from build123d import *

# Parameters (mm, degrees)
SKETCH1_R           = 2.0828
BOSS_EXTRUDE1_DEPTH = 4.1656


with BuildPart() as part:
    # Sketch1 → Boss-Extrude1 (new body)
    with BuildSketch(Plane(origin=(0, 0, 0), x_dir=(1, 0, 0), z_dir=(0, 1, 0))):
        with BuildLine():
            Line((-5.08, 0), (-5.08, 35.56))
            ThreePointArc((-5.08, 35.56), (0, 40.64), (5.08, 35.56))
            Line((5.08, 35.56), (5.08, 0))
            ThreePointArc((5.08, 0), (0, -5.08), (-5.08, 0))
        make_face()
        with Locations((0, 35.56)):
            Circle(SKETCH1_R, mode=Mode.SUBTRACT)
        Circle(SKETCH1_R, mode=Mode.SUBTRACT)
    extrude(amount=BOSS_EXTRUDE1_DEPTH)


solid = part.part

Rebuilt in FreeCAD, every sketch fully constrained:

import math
import FreeCAD as App
import Part
import Sketcher

V = App.Vector
Q = App.Units.Quantity

doc = App.newDocument("Part")
body = doc.addObject("PartDesign::Body", "Body")

sketch1 = doc.addObject("Sketcher::SketchObject", "Sketch")
body.addObject(sketch1)
sketch1.AttachmentSupport = (doc.XZ_Plane, [""])
sketch1.MapMode = "FlatFace"
sketch1.addGeometry([
    Part.LineSegment(V(-5.08, -35.56, 0), V(-5.08, 0, 0)),
    Part.ArcOfCircle(Part.Circle(V(0, 0, 0), V(0, 0, 1), 5.08), math.radians(0), math.radians(180)),
    Part.LineSegment(V(5.08, 0, 0), V(5.08, -35.56, 0)),
    Part.ArcOfCircle(Part.Circle(V(0, -35.56, 0), V(0, 0, 1), 5.08), math.radians(180), math.radians(360)),
    Part.Circle(V(0, 0, 0), V(0, 0, 1), 2.0828),
    Part.Circle(V(0, -35.56, 0), V(0, 0, 1), 2.0828),
], False)
sketch1.addConstraint([
    Sketcher.Constraint("Tangent", 0, 2, 1, 2),
    Sketcher.Constraint("Tangent", 1, 1, 2, 1),
    Sketcher.Constraint("Tangent", 2, 2, 3, 2),
    Sketcher.Constraint("Tangent", 3, 1, 0, 1),
    Sketcher.Constraint("Vertical", 0),
    Sketcher.Constraint("Vertical", 2),
    Sketcher.Constraint("Coincident", 1, 3, -1, 1),
    Sketcher.Constraint("Coincident", 4, 3, -1, 1),
    Sketcher.Constraint("Coincident", 5, 3, 3, 3),
    Sketcher.Constraint("Equal", 4, 5),
    Sketcher.Constraint("Radius", 1, Q("0.2 in")),
    Sketcher.Constraint("Diameter", 4, Q("0.164 in")),
    Sketcher.Constraint("DistanceY", 0, 1, 0, 2, Q("1.4 in")),
])
pad1 = doc.addObject("PartDesign::Pad", "Pad")
body.addObject(pad1)
pad1.Profile = sketch1
pad1.Length = Q("0.164 in")
pad1.Reversed = True

doc.recompute()
